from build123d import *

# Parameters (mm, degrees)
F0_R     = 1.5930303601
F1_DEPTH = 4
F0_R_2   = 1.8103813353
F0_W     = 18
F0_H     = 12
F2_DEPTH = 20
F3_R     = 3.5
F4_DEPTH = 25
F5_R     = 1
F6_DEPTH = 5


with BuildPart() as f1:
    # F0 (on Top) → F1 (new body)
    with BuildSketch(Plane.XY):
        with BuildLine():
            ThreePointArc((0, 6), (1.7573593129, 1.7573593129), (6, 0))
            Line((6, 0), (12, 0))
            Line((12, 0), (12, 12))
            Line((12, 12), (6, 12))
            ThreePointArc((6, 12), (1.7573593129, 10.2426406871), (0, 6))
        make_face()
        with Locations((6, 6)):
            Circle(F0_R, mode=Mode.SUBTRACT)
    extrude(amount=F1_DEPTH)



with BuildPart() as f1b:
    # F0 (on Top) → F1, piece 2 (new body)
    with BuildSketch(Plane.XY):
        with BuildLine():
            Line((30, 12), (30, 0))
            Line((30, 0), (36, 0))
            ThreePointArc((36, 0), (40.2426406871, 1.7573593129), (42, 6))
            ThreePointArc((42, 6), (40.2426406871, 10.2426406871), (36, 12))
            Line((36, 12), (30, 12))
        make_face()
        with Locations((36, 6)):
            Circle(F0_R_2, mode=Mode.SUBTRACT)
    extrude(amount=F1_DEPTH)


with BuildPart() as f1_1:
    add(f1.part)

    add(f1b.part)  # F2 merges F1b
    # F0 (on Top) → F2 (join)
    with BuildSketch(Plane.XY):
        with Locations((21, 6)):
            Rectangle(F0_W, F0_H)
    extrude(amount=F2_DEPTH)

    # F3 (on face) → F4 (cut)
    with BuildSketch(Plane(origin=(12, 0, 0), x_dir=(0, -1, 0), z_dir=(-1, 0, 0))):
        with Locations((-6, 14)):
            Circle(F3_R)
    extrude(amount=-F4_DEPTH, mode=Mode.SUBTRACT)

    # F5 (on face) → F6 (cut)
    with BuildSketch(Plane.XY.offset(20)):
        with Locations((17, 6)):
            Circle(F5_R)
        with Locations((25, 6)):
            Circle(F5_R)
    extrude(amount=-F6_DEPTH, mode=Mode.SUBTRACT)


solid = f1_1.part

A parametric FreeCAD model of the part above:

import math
import FreeCAD as App
import Part
import Sketcher
from FreeCAD import Vector
Q = App.Units.Quantity


def add_polygon(sketch, points):
    """Adds a closed chain of lines whose ends are joined by coincident constraints."""
    first, n = sketch.GeometryCount, len(points)
    for a, b in zip(points, points[1:] + points[:1]):
        sketch.addGeometry(Part.LineSegment(App.Vector(*a, 0), App.Vector(*b, 0)), False)
    for i in range(n):
        sketch.addConstraint(Sketcher.Constraint("Coincident", first + i, 2, first + (i + 1) % n, 1))

doc = App.newDocument("Part")
params = doc.addObject("Spreadsheet::Sheet", "Params")
for row, (alias, value) in enumerate([
    ("sketch1_radius", "6 mm"),
    ("sketch1_width", "6 mm"),
    ("pad1_length", "4 mm"),
    ("sketch2_radius", "6 mm"),
    ("sketch2_width", "6 mm"),
    ("pad2_length", "4 mm"),
    ("sketch3_width", "18 mm"),
    ("sketch3_height", "12 mm"),
    ("pad3_length", "20 mm"),
    ("sketch4_diameter", "7 mm"),
    ("pocket1_length", "25 mm"),
    ("sketch5_diameter", "2 mm"),
    ("pocket2_length", "5 mm"),
], start=1):
    params.set(f"A{row}", alias)
    params.set(f"B{row}", "=" + value)
    params.setAlias(f"B{row}", alias)

body = doc.addObject("PartDesign::Body", "Body")

# Sketch on XY plane
sketch1 = body.newObject("Sketcher::SketchObject", "Sketch")
sketch1.AttachmentSupport = (doc.getObject("XY_Plane"), [""])
sketch1.MapMode = "FlatFace"
sketch1.addGeometry(Part.ArcOfCircle(Part.Circle(Vector(6, 6, 0), Vector(0, 0, 1), 6), math.radians(180), math.radians(270)), False)
sketch1.addGeometry(Part.LineSegment(Vector(6, 0, 0), Vector(12, 0, 0)), False)
sketch1.addGeometry(Part.LineSegment(Vector(12, 0, 0), Vector(12, 12, 0)), False)
sketch1.addGeometry(Part.LineSegment(Vector(12, 12, 0), Vector(6, 12, 0)), False)
sketch1.addGeometry(Part.ArcOfCircle(Part.Circle(Vector(6, 6, 0), Vector(0, 0, 1), 6), math.radians(90), math.radians(180)), False)
sketch1.addGeometry(Part.Circle(Vector(6, 6, 0), Vector(0, 0, 1), 1.6), False)
sketch1.addConstraint(Sketcher.Constraint("Tangent", 0, 2, 1, 1))
sketch1.addConstraint(Sketcher.Constraint("Coincident", 1, 2, 2, 1))
sketch1.addConstraint(Sketcher.Constraint("Coincident", 2, 2, 3, 1))
sketch1.addConstraint(Sketcher.Constraint("Tangent", 3, 2, 4, 1))
sketch1.addConstraint(Sketcher.Constraint("Tangent", 4, 2, 0, 1))
sketch1.addConstraint(Sketcher.Constraint("Horizontal", 1))
sketch1.addConstraint(Sketcher.Constraint("Vertical", 2))
sketch1.addConstraint(Sketcher.Constraint("Horizontal", 3))
sketch1.addConstraint(Sketcher.Constraint("Coincident", 5, 3, 0, 3))
sketch1.addConstraint(Sketcher.Constraint("Equal", 0, 4))
sketch1.addConstraint(Sketcher.Constraint("PointOnObject", 0, 2, -1))
sketch1.addConstraint(Sketcher.Constraint("PointOnObject", 4, 2, -2))
sketch1.addConstraint(Sketcher.Constraint("Horizontal", 5, 3, 4, 2))
sketch1.addConstraint(Sketcher.Constraint("Radius", 0, Q("6 mm")))
sketch1.addConstraint(Sketcher.Constraint("DistanceX", 1, 1, 1, 2, Q("6 mm")))
sketch1.addConstraint(Sketcher.Constraint("Diameter", 5, Q("3.186061 mm")))
sketch1.setExpression("Constraints[13]", "Params.sketch1_radius")
sketch1.setExpression("Constraints[14]", "Params.sketch1_width")
pad1 = body.newObject("PartDesign::Pad", "Pad")
pad1.Profile = sketch1
pad1.setExpression("Length", "Params.pad1_length")
body2 = doc.addObject("PartDesign::Body", "Body001")

# Sketch on XY plane
sketch2 = body2.newObject("Sketcher::SketchObject", "Sketch001")
sketch2.AttachmentSupport = (doc.getObject("XY_Plane001"), [""])
sketch2.MapMode = "FlatFace"
sketch2.addGeometry(Part.LineSegment(Vector(30, 12, 0), Vector(30, 0, 0)), False)
sketch2.addGeometry(Part.LineSegment(Vector(30, 0, 0), Vector(36, 0, 0)), False)
sketch2.addGeometry(Part.ArcOfCircle(Part.Circle(Vector(36, 6, 0), Vector(0, 0, 1), 6), math.radians(-90), math.radians(0)), False)
sketch2.addGeometry(Part.ArcOfCircle(Part.Circle(Vector(36, 6, 0), Vector(0, 0, 1), 6), math.radians(0), math.radians(90)), False)
sketch2.addGeometry(Part.LineSegment(Vector(36, 12, 0), Vector(30, 12, 0)), False)
sketch2.addGeometry(Part.Circle(Vector(36, 6, 0), Vector(0, 0, 1), 1.8), False)
sketch2.addConstraint(Sketcher.Constraint("Coincident", 0, 2, 1, 1))
sketch2.addConstraint(Sketcher.Constraint("Tangent", 1, 2, 2, 1))
sketch2.addConstraint(Sketcher.Constraint("Tangent", 2, 2, 3, 1))
sketch2.addConstraint(Sketcher.Constraint("Tangent", 3, 2, 4, 1))
sketch2.addConstraint(Sketcher.Constraint("Coincident", 4, 2, 0, 1))
sketch2.addConstraint(Sketcher.Constraint("Vertical", 0))
sketch2.addConstraint(Sketcher.Constraint("Horizontal", 1))
sketch2.addConstraint(Sketcher.Constraint("Horizontal", 4))
sketch2.addConstraint(Sketcher.Constraint("Coincident", 5, 3, 2, 3))
sketch2.addConstraint(Sketcher.Constraint("Equal", 2, 3))
sketch2.addConstraint(Sketcher.Constraint("PointOnObject", 0, 2, -1))
sketch2.addConstraint(Sketcher.Constraint("Horizontal", 5, 3, 2, 2))
sketch2.addConstraint(Sketcher.Constraint("Radius", 2, Q("6 mm")))
sketch2.addConstraint(Sketcher.Constraint("DistanceX", 1, 1, 1, 2, Q("6 mm")))
sketch2.addConstraint(Sketcher.Constraint("DistanceX", -1, 1, 2, 3, Q("36 mm")))
sketch2.addConstraint(Sketcher.Constraint("Diameter", 5, Q("3.620763 mm")))
sketch2.setExpression("Constraints[12]", "Params.sketch2_radius")
sketch2.setExpression("Constraints[13]", "Params.sketch2_width")
pad2 = body2.newObject("PartDesign::Pad", "Pad001")
pad2.Profile = sketch2
pad2.setExpression("Length", "Params.pad2_length")
body.AllowCompound = True
doc.recompute()

boolean = body.newObject("PartDesign::Boolean", "Boolean")
boolean.Type = "Fuse"
boolean.addObjects([body2])

# Sketch on XY plane
sketch3 = body.newObject("Sketcher::SketchObject", "Sketch002")
sketch3.AttachmentSupport = (doc.getObject("XY_Plane"), [""])
sketch3.MapMode = "FlatFace"
add_polygon(sketch3, [(12, 12), (12, 0), (30, 0), (30, 12)])  # lines 0-3
sketch3.addConstraint(Sketcher.Constraint("Vertical", 0))
sketch3.addConstraint(Sketcher.Constraint("Horizontal", 1))
sketch3.addConstraint(Sketcher.Constraint("Vertical", 2))
sketch3.addConstraint(Sketcher.Constraint("Horizontal", 3))
sketch3.addConstraint(Sketcher.Constraint("PointOnObject", 0, 2, -1))
sketch3.addConstraint(Sketcher.Constraint("DistanceX", 1, 1, 1, 2, Q("18 mm")))
sketch3.addConstraint(Sketcher.Constraint("DistanceY", 0, 2, 0, 1, Q("12 mm")))
sketch3.addConstraint(Sketcher.Constraint("DistanceX", -1, 1, 0, 2, Q("12 mm")))
sketch3.setExpression("Constraints[9]", "Params.sketch3_width")
sketch3.setExpression("Constraints[10]", "Params.sketch3_height")
pad3 = body.newObject("PartDesign::Pad", "Pad002")
pad3.Profile = sketch3
pad3.setExpression("Length", "Params.pad3_length")

# Sketch on YZ plane
sketch4 = body.newObject("Sketcher::SketchObject", "Sketch003")
sketch4.AttachmentSupport = (doc.getObject("YZ_Plane"), [""])
sketch4.MapMode = "FlatFace"
sketch4.AttachmentOffset = App.Placement(Vector(0, 0, 12), App.Rotation())
sketch4.addGeometry(Part.Circle(Vector(6, 14, 0), Vector(0, 0, 1), 3.5), False)
sketch4.addConstraint(Sketcher.Constraint("Diameter", 0, Q("7 mm")))
sketch4.addConstraint(Sketcher.Constraint("DistanceX", -1, 1, 0, 3, Q("6 mm")))
sketch4.addConstraint(Sketcher.Constraint("DistanceY", -1, 1, 0, 3, Q("14 mm")))
sketch4.setExpression("Constraints[0]", "Params.sketch4_diameter")
pocket1 = body.newObject("PartDesign::Pocket", "Pocket")
pocket1.Profile = sketch4
pocket1.setExpression("Length", "Params.pocket1_length")
pocket1.Reversed = True

# Sketch on XY plane
sketch5 = body.newObject("Sketcher::SketchObject", "Sketch004")
sketch5.AttachmentSupport = (doc.getObject("XY_Plane"), [""])
sketch5.MapMode = "FlatFace"
sketch5.AttachmentOffset = App.Placement(Vector(0, 0, 20), App.Rotation())
sketch5.addGeometry(Part.Circle(Vector(17, 6, 0), Vector(0, 0, 1), 1), False)
sketch5.addGeometry(Part.Circle(Vector(25, 6, 0), Vector(0, 0, 1), 1), False)
sketch5.addConstraint(Sketcher.Constraint("Equal", 0, 1))
sketch5.addConstraint(Sketcher.Constraint("Horizontal", 0, 3, 1, 3))
sketch5.addConstraint(Sketcher.Constraint("Diameter", 0, Q("2 mm")))
sketch5.addConstraint(Sketcher.Constraint("DistanceX", -1, 1, 0, 3, Q("17 mm")))
sketch5.addConstraint(Sketcher.Constraint("DistanceY", -1, 1, 0, 3, Q("6 mm")))
sketch5.addConstraint(Sketcher.Constraint("DistanceX", -1, 1, 1, 3, Q("25 mm")))
sketch5.setExpression("Constraints[2]", "Params.sketch5_diameter")
pocket2 = body.newObject("PartDesign::Pocket", "Pocket001")
pocket2.Profile = sketch5
pocket2.setExpression("Length", "Params.pocket2_length")

doc.recompute()
